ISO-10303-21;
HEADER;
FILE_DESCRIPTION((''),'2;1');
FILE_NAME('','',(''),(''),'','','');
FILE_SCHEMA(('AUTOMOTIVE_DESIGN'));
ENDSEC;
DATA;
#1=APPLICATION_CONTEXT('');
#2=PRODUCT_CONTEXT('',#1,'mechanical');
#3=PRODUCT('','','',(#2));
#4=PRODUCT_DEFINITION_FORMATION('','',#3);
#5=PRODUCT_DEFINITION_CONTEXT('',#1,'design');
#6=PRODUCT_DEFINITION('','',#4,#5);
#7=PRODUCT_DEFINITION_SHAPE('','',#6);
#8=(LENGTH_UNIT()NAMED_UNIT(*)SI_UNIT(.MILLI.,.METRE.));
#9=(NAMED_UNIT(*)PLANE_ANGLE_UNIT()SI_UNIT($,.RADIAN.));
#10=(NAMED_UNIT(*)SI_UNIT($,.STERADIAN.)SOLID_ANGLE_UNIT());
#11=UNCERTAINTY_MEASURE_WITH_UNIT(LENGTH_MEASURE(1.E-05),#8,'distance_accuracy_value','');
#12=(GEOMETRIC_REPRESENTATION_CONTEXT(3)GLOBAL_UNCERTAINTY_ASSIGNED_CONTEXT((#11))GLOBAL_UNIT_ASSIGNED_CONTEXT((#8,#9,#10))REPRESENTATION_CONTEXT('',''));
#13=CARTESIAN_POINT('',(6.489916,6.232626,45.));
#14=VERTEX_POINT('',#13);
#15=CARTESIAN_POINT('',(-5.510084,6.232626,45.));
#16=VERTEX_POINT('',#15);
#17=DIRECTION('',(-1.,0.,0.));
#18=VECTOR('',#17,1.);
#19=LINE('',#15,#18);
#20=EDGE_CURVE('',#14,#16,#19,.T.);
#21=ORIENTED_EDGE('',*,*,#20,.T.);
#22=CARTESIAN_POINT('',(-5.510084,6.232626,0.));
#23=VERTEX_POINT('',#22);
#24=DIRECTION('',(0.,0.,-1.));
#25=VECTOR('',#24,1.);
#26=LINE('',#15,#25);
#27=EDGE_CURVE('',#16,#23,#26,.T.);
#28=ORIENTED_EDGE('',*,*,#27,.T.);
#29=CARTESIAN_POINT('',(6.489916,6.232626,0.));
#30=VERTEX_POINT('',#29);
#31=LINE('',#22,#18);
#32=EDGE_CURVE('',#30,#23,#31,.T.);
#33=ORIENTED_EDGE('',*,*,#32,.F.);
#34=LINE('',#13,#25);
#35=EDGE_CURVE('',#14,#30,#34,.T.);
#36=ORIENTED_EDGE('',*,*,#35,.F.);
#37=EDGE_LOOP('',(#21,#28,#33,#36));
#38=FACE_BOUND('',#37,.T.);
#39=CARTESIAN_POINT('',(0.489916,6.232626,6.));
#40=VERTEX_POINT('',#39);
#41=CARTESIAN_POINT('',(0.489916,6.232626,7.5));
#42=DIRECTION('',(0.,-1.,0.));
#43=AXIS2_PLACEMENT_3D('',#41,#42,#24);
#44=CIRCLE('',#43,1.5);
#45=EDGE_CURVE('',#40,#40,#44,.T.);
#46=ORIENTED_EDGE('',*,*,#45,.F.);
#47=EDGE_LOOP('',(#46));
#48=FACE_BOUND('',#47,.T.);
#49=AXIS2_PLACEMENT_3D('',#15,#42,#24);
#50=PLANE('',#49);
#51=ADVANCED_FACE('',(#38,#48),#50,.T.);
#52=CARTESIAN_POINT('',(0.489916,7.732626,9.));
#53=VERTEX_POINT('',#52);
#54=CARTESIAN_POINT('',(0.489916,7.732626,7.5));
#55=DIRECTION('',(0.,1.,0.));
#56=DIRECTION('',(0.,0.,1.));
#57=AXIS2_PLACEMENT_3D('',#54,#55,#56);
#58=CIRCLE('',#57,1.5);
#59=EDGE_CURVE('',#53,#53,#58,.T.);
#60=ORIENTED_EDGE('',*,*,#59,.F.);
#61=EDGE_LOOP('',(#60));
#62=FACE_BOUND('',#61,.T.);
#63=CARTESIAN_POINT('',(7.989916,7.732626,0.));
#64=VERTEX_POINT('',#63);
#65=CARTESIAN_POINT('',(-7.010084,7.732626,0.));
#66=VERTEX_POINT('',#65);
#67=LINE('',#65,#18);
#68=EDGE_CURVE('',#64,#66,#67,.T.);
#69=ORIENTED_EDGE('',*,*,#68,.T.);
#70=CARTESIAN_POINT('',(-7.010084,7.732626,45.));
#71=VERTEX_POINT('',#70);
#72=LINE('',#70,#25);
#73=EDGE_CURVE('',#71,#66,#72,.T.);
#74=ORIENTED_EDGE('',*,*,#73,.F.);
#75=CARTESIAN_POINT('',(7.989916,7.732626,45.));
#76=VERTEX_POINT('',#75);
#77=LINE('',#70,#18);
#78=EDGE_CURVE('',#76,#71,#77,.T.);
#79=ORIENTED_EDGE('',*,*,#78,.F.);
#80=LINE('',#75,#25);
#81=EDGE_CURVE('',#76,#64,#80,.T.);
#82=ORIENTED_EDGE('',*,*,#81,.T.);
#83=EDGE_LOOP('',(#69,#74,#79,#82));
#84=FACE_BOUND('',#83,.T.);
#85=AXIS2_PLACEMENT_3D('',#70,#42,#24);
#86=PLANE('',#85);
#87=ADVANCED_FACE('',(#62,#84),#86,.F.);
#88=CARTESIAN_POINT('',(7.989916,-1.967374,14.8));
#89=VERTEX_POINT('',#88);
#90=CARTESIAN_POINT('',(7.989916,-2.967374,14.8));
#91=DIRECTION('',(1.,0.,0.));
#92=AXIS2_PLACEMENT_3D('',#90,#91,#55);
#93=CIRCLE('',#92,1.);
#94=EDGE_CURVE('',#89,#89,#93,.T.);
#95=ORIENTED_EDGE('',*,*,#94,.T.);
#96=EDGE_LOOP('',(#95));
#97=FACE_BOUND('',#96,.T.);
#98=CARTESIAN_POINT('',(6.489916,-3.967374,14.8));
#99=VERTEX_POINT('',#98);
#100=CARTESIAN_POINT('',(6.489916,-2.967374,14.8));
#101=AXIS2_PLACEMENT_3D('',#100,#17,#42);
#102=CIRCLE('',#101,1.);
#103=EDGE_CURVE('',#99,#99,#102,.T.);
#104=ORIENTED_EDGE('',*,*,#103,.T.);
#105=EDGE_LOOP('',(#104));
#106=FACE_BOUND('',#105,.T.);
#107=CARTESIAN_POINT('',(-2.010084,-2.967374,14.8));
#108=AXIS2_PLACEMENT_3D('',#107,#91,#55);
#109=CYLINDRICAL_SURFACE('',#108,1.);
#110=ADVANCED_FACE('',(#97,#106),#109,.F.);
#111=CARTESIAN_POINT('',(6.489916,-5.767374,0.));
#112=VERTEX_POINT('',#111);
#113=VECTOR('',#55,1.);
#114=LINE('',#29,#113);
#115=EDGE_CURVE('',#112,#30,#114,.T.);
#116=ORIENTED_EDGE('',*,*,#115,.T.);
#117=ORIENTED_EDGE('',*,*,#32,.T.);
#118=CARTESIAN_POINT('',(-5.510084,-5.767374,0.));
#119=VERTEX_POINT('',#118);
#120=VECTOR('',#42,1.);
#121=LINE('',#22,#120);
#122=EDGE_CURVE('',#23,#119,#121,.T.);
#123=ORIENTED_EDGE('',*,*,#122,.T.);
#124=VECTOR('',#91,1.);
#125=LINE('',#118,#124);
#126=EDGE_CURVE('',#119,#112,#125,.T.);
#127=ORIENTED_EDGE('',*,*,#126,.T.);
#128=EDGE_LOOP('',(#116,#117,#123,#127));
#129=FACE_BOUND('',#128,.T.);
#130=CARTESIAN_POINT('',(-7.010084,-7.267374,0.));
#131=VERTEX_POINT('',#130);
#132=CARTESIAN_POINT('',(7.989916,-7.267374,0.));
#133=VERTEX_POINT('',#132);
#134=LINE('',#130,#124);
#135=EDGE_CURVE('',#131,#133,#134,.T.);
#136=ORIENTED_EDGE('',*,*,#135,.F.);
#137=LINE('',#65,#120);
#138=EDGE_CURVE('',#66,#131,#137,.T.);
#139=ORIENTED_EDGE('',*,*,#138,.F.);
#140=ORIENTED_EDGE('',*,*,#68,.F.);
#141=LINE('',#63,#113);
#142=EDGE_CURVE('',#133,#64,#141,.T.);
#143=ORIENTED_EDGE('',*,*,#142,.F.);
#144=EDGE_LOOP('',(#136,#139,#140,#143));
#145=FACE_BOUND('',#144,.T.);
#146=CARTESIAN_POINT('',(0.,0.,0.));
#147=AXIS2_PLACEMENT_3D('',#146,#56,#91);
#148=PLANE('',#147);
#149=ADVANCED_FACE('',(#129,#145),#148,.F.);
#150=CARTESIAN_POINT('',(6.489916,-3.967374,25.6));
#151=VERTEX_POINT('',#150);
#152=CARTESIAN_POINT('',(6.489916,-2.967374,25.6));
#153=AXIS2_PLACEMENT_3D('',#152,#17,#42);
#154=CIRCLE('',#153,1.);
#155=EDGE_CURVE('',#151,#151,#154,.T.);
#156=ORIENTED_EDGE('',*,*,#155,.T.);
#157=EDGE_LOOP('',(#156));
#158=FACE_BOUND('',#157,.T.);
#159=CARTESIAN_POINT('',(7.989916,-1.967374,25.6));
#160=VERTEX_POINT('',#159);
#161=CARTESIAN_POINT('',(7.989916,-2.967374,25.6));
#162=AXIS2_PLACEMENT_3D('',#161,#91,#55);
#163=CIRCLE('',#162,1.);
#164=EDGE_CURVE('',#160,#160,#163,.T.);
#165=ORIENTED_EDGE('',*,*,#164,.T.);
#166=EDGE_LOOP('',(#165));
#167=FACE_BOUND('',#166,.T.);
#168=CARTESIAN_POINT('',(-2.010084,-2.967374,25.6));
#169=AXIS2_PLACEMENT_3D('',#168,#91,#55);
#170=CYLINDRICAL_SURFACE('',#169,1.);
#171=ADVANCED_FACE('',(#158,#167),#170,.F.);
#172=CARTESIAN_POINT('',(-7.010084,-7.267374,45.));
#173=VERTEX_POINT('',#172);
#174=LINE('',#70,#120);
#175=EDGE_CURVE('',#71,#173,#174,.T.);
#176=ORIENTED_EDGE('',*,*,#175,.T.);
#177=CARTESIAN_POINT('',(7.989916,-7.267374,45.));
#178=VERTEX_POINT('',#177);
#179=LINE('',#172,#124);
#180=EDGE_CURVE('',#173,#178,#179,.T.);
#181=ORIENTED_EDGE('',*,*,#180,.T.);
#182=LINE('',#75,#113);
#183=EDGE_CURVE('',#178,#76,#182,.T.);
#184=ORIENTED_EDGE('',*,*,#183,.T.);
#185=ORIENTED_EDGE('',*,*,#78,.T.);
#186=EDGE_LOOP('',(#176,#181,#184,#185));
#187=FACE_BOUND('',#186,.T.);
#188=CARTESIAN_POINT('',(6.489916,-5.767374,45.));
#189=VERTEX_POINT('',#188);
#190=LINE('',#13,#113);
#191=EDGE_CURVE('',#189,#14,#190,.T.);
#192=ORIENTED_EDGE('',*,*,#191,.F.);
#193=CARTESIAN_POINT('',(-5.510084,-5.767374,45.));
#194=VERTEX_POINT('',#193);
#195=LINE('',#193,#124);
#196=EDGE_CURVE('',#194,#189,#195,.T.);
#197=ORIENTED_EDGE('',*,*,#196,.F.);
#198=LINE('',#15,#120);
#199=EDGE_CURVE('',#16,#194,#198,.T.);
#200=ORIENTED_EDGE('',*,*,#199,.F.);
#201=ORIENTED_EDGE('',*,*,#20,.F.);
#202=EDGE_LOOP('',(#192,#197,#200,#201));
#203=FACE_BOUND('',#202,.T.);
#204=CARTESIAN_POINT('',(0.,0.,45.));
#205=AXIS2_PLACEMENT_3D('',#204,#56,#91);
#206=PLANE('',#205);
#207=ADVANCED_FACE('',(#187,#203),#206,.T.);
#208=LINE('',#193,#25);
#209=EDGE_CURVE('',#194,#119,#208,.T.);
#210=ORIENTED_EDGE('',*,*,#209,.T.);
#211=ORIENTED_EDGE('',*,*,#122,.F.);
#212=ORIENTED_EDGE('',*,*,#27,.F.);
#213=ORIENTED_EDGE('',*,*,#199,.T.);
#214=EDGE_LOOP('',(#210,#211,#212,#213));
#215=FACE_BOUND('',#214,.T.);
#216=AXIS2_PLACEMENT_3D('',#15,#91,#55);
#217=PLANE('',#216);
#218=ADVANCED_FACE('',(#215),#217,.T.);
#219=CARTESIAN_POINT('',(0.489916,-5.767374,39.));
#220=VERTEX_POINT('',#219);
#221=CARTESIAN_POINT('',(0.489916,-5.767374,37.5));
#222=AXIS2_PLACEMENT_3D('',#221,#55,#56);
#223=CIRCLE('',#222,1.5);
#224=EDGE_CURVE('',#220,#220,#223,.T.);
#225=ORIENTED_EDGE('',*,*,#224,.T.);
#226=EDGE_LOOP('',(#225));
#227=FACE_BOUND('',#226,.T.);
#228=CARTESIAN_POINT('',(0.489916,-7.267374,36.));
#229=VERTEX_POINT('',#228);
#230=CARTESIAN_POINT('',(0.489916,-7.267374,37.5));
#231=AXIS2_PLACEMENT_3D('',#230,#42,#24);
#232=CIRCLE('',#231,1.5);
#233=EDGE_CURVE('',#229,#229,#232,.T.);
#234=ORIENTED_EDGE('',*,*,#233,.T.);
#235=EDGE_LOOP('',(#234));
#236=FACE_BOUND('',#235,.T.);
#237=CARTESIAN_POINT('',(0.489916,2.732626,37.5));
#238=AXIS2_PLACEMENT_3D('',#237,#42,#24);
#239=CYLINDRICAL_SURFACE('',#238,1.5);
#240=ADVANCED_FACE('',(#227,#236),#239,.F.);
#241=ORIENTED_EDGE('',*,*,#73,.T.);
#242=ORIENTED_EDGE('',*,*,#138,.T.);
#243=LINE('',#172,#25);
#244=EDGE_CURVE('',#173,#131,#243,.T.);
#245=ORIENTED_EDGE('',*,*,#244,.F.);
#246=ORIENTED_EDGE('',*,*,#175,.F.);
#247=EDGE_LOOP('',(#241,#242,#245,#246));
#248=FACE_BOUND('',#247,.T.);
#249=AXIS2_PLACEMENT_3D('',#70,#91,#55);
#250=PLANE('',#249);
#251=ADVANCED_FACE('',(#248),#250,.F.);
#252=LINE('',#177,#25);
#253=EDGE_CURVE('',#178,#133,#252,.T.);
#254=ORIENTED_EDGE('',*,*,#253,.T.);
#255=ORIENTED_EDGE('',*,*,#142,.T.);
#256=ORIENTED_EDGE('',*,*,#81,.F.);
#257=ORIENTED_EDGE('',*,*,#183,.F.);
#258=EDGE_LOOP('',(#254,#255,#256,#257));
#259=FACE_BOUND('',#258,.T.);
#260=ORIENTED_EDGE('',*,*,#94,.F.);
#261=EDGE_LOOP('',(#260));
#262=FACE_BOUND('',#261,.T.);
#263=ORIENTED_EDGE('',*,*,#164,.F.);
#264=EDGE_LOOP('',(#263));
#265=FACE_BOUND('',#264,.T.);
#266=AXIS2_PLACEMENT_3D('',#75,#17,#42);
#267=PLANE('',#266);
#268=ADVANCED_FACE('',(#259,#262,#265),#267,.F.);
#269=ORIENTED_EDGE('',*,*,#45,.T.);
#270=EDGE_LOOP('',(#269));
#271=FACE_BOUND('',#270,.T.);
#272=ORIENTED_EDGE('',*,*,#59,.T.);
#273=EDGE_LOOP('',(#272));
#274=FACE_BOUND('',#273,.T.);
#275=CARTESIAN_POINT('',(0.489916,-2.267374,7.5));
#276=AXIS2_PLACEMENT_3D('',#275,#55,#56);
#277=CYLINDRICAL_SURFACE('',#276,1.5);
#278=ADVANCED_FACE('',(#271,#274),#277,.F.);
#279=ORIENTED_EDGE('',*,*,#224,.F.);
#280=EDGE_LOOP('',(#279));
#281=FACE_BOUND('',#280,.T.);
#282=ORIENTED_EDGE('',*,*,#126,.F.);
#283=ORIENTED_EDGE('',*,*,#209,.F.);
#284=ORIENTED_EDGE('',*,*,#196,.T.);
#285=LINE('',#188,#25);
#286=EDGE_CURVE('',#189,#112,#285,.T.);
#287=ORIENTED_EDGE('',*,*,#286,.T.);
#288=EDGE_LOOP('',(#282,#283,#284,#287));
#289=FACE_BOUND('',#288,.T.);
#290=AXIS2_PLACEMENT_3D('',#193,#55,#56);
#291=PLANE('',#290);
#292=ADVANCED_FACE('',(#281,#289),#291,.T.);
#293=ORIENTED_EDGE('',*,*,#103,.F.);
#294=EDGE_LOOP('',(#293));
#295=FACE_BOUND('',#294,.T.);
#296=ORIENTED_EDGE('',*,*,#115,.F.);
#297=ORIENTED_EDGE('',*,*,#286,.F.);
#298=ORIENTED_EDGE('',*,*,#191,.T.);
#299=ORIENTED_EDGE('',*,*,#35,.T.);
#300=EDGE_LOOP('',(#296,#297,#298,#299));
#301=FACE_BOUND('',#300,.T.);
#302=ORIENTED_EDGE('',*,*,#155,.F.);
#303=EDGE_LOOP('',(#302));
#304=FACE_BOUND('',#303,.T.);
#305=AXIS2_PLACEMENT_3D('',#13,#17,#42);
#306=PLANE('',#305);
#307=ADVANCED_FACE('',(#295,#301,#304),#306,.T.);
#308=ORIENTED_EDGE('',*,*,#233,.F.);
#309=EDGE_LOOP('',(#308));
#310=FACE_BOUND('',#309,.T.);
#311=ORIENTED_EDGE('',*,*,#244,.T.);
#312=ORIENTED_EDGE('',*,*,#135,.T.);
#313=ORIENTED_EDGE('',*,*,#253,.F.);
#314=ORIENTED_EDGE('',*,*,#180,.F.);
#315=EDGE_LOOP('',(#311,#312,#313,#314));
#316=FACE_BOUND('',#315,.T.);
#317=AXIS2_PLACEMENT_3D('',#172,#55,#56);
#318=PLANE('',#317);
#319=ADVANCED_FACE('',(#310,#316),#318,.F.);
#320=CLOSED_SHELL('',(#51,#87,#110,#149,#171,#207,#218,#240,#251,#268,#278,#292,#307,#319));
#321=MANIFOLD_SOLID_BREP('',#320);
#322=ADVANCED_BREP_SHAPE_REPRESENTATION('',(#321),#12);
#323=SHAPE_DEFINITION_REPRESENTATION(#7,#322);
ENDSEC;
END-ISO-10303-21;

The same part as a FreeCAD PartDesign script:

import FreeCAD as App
import Part
import Sketcher
from FreeCAD import Vector


def add_polygon(sketch, points):
    """Adds a closed chain of lines whose ends are joined by coincident constraints."""
    first, n = sketch.GeometryCount, len(points)
    for a, b in zip(points, points[1:] + points[:1]):
        sketch.addGeometry(Part.LineSegment(App.Vector(*a, 0), App.Vector(*b, 0)), False)
    for i in range(n):
        sketch.addConstraint(Sketcher.Constraint("Coincident", first + i, 2, first + (i + 1) % n, 1))

doc = App.newDocument("Part")
body = doc.addObject("PartDesign::Body", "Body")

sketch1 = body.newObject("Sketcher::SketchObject", "Sketch")
sketch1.AttachmentSupport = (doc.getObject("XY_Plane"), [""])
sketch1.MapMode = "FlatFace"
add_polygon(sketch1, [(-7, 8), (-7, -7), (8, -7), (8, 8)])
add_polygon(sketch1, [(6, -6), (-6, -6), (-6, 6), (6, 6)])
sketch1.addConstraint([
    Sketcher.Constraint("Vertical", 0),
    Sketcher.Constraint("Horizontal", 1),
    Sketcher.Constraint("Vertical", 2),
    Sketcher.Constraint("Horizontal", 3),
    Sketcher.Constraint("Horizontal", 4),
    Sketcher.Constraint("Vertical", 5),
    Sketcher.Constraint("Horizontal", 6),
    Sketcher.Constraint("Vertical", 7),
    Sketcher.Constraint("Equal", 3, 0),
    Sketcher.Constraint("Equal", 6, 5),
    Sketcher.Constraint("DistanceX", 1, 1, 1, 2, 15.0),
    Sketcher.Constraint("DistanceX", 4, 2, 4, 1, 12.0),
    Sketcher.Constraint("DistanceX", 0, 2, 4, 2, 1.5),
    Sketcher.Constraint("DistanceY", 0, 2, 4, 2, 1.5),
    Sketcher.Constraint("DistanceX", 0, 2, -1, 1, 7.010084),
    Sketcher.Constraint("DistanceY", 0, 2, -1, 1, 7.267374),
])
pad1 = body.newObject("PartDesign::Pad", "Pad")
pad1.Profile = sketch1
pad1.Length = 45

sketch2 = body.newObject("Sketcher::SketchObject", "Sketch001")
sketch2.AttachmentSupport = (doc.getObject("XZ_Plane"), [""])
sketch2.MapMode = "FlatFace"
sketch2.AttachmentOffset = App.Placement(Vector(0, 0, -7.732626), App.Rotation())
sketch2.addGeometry(Part.Circle(Vector(0.5, 7.5, 0), Vector(0, 0, 1), 1.5), False)
sketch2.addConstraint([
    Sketcher.Constraint("Diameter", 0, 3.0),
    Sketcher.Constraint("DistanceY", -1, 1, 0, 3, 7.5),
    Sketcher.Constraint("DistanceX", -1, 1, 0, 3, 0.489916),
])
pocket1 = body.newObject("PartDesign::Pocket", "Pocket")
pocket1.Profile = sketch2
pocket1.Length = 10
pocket1.Reversed = True

sketch3 = body.newObject("Sketcher::SketchObject", "Sketch002")
sketch3.AttachmentSupport = (doc.getObject("XZ_Plane"), [""])
sketch3.MapMode = "FlatFace"
sketch3.AttachmentOffset = App.Placement(Vector(0, 0, 7.267374), App.Rotation())
sketch3.addGeometry(Part.Circle(Vector(0.5, 37.5, 0), Vector(0, 0, 1), 1.5), False)
sketch3.addConstraint([
    Sketcher.Constraint("Diameter", 0, 3.0),
    Sketcher.Constraint("DistanceY", -1, 1, 0, 3, 37.5),
    Sketcher.Constraint("DistanceX", -1, 1, 0, 3, 0.489916),
])
pocket2 = body.newObject("PartDesign::Pocket", "Pocket001")
pocket2.Profile = sketch3
pocket2.Length = 10

sketch4 = body.newObject("Sketcher::SketchObject", "Sketch003")
sketch4.AttachmentSupport = (doc.getObject("YZ_Plane"), [""])
sketch4.MapMode = "FlatFace"
sketch4.AttachmentOffset = App.Placement(Vector(0, 0, 7.989916), App.Rotation())
sketch4.addGeometry(Part.Circle(Vector(-3, 25.6, 0), Vector(0, 0, 1), 1), False)
sketch4.addConstraint([
    Sketcher.Constraint("Diameter", 0, 2.0),
    Sketcher.Constraint("DistanceY", -1, 1, 0, 3, 25.6),
    Sketcher.Constraint("DistanceX", 0, 3, -1, 1, 2.967374),
])
pocket3 = body.newObject("PartDesign::Pocket", "Pocket002")
pocket3.Profile = sketch4
pocket3.Length = 10

sketch5 = body.newObject("Sketcher::SketchObject", "Sketch004")
sketch5.AttachmentSupport = (doc.getObject("YZ_Plane"), [""])
sketch5.MapMode = "FlatFace"
sketch5.AttachmentOffset = App.Placement(Vector(0, 0, 7.989916), App.Rotation())
sketch5.addGeometry(Part.Circle(Vector(-3, 14.8, 0), Vector(0, 0, 1), 1), False)
sketch5.addConstraint([
    Sketcher.Constraint("Diameter", 0, 2.0),
    Sketcher.Constraint("DistanceY", -1, 1, 0, 3, 14.8),
    Sketcher.Constraint("DistanceX", 0, 3, -1, 1, 2.967374),
])
pocket4 = body.newObject("PartDesign::Pocket", "Pocket003")
pocket4.Profile = sketch5
pocket4.Length = 10

doc.recompute()
